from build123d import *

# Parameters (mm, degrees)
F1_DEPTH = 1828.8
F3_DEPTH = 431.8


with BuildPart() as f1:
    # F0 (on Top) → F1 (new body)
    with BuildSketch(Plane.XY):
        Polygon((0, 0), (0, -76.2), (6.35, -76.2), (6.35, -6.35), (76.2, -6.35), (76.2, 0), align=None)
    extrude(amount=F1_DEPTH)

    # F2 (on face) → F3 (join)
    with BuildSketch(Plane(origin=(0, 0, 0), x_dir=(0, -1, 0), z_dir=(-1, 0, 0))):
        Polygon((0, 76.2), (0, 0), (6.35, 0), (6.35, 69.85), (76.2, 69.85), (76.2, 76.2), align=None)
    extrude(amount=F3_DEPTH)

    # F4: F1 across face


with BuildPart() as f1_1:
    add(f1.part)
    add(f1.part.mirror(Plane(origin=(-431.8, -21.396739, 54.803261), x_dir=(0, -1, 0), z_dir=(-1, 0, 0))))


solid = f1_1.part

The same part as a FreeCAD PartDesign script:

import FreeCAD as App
import Part
import Sketcher
from FreeCAD import Vector
Q = App.Units.Quantity


def add_polygon(sketch, points):
    """Adds a closed chain of lines whose ends are joined by coincident constraints."""
    first, n = sketch.GeometryCount, len(points)
    for a, b in zip(points, points[1:] + points[:1]):
        sketch.addGeometry(Part.LineSegment(App.Vector(*a, 0), App.Vector(*b, 0)), False)
    for i in range(n):
        sketch.addConstraint(Sketcher.Constraint("Coincident", first + i, 2, first + (i + 1) % n, 1))

doc = App.newDocument("Part")
body = doc.addObject("PartDesign::Body", "Body")

sketch1 = doc.addObject("Sketcher::SketchObject", "Sketch")
body.addObject(sketch1)
sketch1.AttachmentSupport = (doc.XY_Plane, [""])
sketch1.MapMode = "FlatFace"
add_polygon(sketch1, [(0, 0), (0, -76.2), (6.35, -76.2), (6.35, -6.35), (76.2, -6.35), (76.2, 0)])
sketch1.addConstraint(Sketcher.Constraint("Vertical", 0))
sketch1.addConstraint(Sketcher.Constraint("Horizontal", 1))
sketch1.addConstraint(Sketcher.Constraint("Vertical", 2))
sketch1.addConstraint(Sketcher.Constraint("Horizontal", 3))
sketch1.addConstraint(Sketcher.Constraint("Vertical", 4))
sketch1.addConstraint(Sketcher.Constraint("Horizontal", 5))
sketch1.addConstraint(Sketcher.Constraint("Coincident", 5, 2, -1, 1))
sketch1.addConstraint(Sketcher.Constraint("Equal", 5, 0))
sketch1.addConstraint(Sketcher.Constraint("Equal", 3, 2))
sketch1.addConstraint(Sketcher.Constraint("DistanceX", 5, 2, 5, 1, Q("3 in")))
sketch1.addConstraint(Sketcher.Constraint("DistanceX", 1, 1, 1, 2, Q("0.25 in")))
pad1 = doc.addObject("PartDesign::Pad", "Pad")
body.addObject(pad1)
pad1.Profile = sketch1
pad1.Length = Q("72 in")

sketch2 = doc.addObject("Sketcher::SketchObject", "Sketch001")
body.addObject(sketch2)
sketch2.AttachmentSupport = (doc.YZ_Plane, [""])
sketch2.MapMode = "FlatFace"
add_polygon(sketch2, [(0, 76.2), (0, 0), (-6.35, 0), (-6.35, 69.85), (-76.2, 69.85), (-76.2, 76.2)])
sketch2.addConstraint(Sketcher.Constraint("Vertical", 0))
sketch2.addConstraint(Sketcher.Constraint("Horizontal", 1))
sketch2.addConstraint(Sketcher.Constraint("Vertical", 2))
sketch2.addConstraint(Sketcher.Constraint("Horizontal", 3))
sketch2.addConstraint(Sketcher.Constraint("Vertical", 4))
sketch2.addConstraint(Sketcher.Constraint("Horizontal", 5))
sketch2.addConstraint(Sketcher.Constraint("Coincident", 0, 2, -1, 1))
sketch2.addConstraint(Sketcher.Constraint("Equal", 5, 0))
sketch2.addConstraint(Sketcher.Constraint("Equal", 3, 2))
sketch2.addConstraint(Sketcher.Constraint("DistanceX", 5, 1, 5, 2, Q("3 in")))
sketch2.addConstraint(Sketcher.Constraint("DistanceX", 1, 2, 1, 1, Q("0.25 in")))
pad2 = doc.addObject("PartDesign::Pad", "Pad001")
body.addObject(pad2)
pad2.Profile = sketch2
pad2.Length = Q("17 in")
pad2.Reversed = True
body2 = doc.addObject("PartDesign::Body", "Body001")
doc.recompute()

body2.BaseFeature = body
doc.recompute()

mirroring = doc.addObject("Part::Mirroring", "Mirroring")
mirroring.Source = body
mirroring.Base = Vector(-431.8, -21.396739, 54.803261)
mirroring.Normal = Vector(-1, 0, 0)
body3 = doc.addObject("PartDesign::Body", "Body002")
body3.BaseFeature = mirroring
boolean = doc.addObject("PartDesign::Boolean", "Boolean")
body2.addObject(boolean)
boolean.Type = "Fuse"
boolean.addObjects([body3])
doc.recompute()
mirroring.Visibility = False

doc.recompute()
